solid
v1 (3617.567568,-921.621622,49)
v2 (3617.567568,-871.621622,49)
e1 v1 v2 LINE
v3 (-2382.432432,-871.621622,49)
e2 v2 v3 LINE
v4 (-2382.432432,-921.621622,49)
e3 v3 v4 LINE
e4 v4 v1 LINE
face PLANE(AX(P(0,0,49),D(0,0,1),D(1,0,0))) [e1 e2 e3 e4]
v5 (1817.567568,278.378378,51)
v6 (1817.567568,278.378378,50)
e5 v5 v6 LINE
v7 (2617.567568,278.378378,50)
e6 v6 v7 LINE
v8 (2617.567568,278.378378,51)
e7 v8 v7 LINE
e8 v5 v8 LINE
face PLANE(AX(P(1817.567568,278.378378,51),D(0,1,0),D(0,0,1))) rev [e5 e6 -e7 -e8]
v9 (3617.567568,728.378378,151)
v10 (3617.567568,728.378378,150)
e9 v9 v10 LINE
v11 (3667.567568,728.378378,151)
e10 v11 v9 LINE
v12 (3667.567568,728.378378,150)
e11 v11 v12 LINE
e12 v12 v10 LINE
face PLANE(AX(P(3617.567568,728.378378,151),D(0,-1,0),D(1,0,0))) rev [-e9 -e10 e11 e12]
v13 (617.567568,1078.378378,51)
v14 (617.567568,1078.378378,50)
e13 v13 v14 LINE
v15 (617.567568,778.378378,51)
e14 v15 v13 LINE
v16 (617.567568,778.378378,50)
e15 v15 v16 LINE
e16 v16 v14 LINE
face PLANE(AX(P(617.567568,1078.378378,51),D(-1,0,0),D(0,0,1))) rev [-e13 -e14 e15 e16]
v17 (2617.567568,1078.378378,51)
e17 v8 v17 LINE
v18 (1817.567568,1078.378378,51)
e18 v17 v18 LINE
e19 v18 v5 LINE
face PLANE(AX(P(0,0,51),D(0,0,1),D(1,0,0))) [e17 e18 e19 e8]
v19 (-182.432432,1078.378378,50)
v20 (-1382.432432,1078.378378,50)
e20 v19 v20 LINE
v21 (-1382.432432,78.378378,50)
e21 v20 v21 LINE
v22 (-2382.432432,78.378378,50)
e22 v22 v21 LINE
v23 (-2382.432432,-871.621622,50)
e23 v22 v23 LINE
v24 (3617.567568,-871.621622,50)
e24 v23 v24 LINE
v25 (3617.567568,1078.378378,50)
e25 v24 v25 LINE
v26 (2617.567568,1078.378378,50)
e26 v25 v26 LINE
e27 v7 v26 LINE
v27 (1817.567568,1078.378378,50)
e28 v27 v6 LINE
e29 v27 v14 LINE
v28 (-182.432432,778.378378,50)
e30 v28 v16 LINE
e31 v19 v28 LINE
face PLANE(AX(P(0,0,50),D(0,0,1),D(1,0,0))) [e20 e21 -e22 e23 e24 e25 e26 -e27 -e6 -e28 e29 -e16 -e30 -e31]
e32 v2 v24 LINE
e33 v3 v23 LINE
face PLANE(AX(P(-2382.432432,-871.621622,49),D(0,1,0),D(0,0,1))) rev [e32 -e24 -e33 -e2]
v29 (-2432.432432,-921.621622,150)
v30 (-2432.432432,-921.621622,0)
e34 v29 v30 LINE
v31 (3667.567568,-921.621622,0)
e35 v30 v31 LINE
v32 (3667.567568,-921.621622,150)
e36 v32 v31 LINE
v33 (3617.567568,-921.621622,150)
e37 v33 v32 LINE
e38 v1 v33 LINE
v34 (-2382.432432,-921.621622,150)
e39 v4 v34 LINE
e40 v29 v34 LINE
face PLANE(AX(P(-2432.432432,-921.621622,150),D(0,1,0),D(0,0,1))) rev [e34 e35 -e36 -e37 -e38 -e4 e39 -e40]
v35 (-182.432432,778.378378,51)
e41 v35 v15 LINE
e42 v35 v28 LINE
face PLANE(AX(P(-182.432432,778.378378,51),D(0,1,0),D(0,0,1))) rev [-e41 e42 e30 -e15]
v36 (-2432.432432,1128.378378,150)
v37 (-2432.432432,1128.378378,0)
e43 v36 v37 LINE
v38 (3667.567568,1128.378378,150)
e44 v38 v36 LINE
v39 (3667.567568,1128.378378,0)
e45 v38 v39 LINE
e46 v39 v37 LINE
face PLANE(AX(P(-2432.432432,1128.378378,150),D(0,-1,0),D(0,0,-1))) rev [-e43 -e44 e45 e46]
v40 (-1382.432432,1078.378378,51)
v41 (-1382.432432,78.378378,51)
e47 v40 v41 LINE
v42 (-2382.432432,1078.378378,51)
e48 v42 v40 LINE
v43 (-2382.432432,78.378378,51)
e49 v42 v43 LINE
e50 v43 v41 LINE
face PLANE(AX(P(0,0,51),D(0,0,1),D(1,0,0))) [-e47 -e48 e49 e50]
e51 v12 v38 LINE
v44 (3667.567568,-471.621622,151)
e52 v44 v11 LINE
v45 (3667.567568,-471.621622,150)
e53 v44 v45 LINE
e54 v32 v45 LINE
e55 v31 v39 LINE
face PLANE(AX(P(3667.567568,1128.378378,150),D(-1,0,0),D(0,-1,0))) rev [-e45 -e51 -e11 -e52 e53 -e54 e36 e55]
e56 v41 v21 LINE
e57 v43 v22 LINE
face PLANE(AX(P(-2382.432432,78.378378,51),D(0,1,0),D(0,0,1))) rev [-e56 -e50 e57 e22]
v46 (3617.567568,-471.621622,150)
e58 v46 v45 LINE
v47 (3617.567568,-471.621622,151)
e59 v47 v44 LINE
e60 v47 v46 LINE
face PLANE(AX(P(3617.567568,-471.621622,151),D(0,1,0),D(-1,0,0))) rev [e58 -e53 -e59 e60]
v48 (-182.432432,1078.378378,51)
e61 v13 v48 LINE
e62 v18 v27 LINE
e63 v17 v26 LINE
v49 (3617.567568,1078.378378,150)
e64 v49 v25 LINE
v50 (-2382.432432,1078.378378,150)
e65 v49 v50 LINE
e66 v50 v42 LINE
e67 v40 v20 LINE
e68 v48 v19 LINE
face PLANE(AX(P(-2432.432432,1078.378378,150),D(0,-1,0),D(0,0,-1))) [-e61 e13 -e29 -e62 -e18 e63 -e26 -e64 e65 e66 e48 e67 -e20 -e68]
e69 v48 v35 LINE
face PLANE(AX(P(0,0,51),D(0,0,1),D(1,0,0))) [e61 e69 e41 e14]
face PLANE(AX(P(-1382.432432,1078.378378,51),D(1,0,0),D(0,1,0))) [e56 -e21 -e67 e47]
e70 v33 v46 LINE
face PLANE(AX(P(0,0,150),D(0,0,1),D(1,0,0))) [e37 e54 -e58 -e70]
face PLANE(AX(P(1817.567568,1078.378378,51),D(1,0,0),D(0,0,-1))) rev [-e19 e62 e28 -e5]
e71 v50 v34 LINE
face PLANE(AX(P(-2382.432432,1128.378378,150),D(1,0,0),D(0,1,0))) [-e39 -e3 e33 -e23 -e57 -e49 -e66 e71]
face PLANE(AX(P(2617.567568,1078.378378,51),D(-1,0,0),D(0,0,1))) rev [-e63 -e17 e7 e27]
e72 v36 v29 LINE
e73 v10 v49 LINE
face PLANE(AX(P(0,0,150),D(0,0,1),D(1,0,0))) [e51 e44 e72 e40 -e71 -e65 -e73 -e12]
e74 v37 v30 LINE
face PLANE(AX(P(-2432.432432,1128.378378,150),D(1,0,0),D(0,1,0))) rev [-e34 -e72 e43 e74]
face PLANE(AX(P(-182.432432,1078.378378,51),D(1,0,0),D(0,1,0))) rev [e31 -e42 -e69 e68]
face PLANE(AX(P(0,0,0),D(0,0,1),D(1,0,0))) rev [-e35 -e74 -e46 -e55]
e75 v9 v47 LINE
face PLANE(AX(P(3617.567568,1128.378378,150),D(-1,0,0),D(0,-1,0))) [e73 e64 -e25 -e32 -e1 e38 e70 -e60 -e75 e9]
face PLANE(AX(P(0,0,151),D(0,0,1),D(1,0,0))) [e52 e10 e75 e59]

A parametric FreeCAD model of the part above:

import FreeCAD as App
import Part
import Sketcher
from FreeCAD import Vector


def faces_at(feature, points):
    """Names of the faces that lie closest to the given points."""
    faces = feature.Shape.Faces
    near = lambda p: min(range(len(faces)), key=lambda i: faces[i].distToShape(Part.Vertex(*p))[0])
    return sorted({f"Face{near(p) + 1}" for p in points})

doc = App.newDocument("Part")
body = doc.addObject("PartDesign::Body", "Body")

# Sketch on XY plane
sketch1 = body.newObject("Sketcher::SketchObject", "Sketch")
sketch1.AttachmentSupport = (doc.getObject("XY_Plane"), [""])
sketch1.MapMode = "FlatFace"
sketch1.addGeometry(Part.LineSegment(Vector(-2432, 1128, 0), Vector(-2432, -922, 0)), False)
sketch1.addGeometry(Part.LineSegment(Vector(-2432, -922, 0), Vector(3668, -922, 0)), False)
sketch1.addGeometry(Part.LineSegment(Vector(3668, -922, 0), Vector(3668, 1128, 0)), False)
sketch1.addGeometry(Part.LineSegment(Vector(3668, 1128, 0), Vector(-2432, 1128, 0)), False)
sketch1.addConstraint(Sketcher.Constraint("Coincident", 0, 2, 1, 1))
sketch1.addConstraint(Sketcher.Constraint("Coincident", 1, 2, 2, 1))
sketch1.addConstraint(Sketcher.Constraint("Coincident", 2, 2, 3, 1))
sketch1.addConstraint(Sketcher.Constraint("Coincident", 3, 2, 0, 1))
sketch1.addConstraint(Sketcher.Constraint("Vertical", 0))
sketch1.addConstraint(Sketcher.Constraint("Horizontal", 1))
sketch1.addConstraint(Sketcher.Constraint("Vertical", 2))
sketch1.addConstraint(Sketcher.Constraint("Horizontal", 3))
sketch1.addConstraint(Sketcher.Constraint("DistanceX", 1, 1, 1, 2, 6100.0))
sketch1.addConstraint(Sketcher.Constraint("DistanceY", 0, 2, 0, 1, 2050.0))
sketch1.addConstraint(Sketcher.Constraint("DistanceY", 0, 2, -1, 1, 921.621622))
sketch1.addConstraint(Sketcher.Constraint("DistanceX", 0, 2, -1, 1, 2432.432432))
pad1 = body.newObject("PartDesign::Pad", "Pad")
pad1.Profile = sketch1
pad1.Length = 150
doc.recompute()

thickness = body.newObject("PartDesign::Thickness", "Thickness")
thickness.Base = (pad1, faces_at(pad1, [(617.568, 103.378, 150)]))
thickness.Value = 50
thickness.Reversed = True
thickness.Join = "Intersection"

# Sketch on XY plane
sketch2 = body.newObject("Sketcher::SketchObject", "Sketch001")
sketch2.AttachmentSupport = (doc.getObject("XY_Plane"), [""])
sketch2.MapMode = "FlatFace"
sketch2.AttachmentOffset = App.Placement(Vector(0, 0, 50), App.Rotation())
sketch2.addGeometry(Part.LineSegment(Vector(-2382, 1078, 0), Vector(-2382, 78, 0)), False)
sketch2.addGeometry(Part.LineSegment(Vector(-2382, 78, 0), Vector(-1382, 78, 0)), False)
sketch2.addGeometry(Part.LineSegment(Vector(-1382, 78, 0), Vector(-1382, 1078, 0)), False)
sketch2.addGeometry(Part.LineSegment(Vector(-1382, 1078, 0), Vector(-2382, 1078, 0)), False)
sketch2.addConstraint(Sketcher.Constraint("Coincident", 0, 2, 1, 1))
sketch2.addConstraint(Sketcher.Constraint("Coincident", 1, 2, 2, 1))
sketch2.addConstraint(Sketcher.Constraint("Coincident", 2, 2, 3, 1))
sketch2.addConstraint(Sketcher.Constraint("Coincident", 3, 2, 0, 1))
sketch2.addConstraint(Sketcher.Constraint("Vertical", 0))
sketch2.addConstraint(Sketcher.Constraint("Horizontal", 1))
sketch2.addConstraint(Sketcher.Constraint("Vertical", 2))
sketch2.addConstraint(Sketcher.Constraint("Horizontal", 3))
sketch2.addConstraint(Sketcher.Constraint("Equal", 3, 0))
sketch2.addConstraint(Sketcher.Constraint("DistanceX", 1, 1, 1, 2, 1000.0))
sketch2.addConstraint(Sketcher.Constraint("DistanceY", -1, 1, 0, 2, 78.378378))
sketch2.addConstraint(Sketcher.Constraint("DistanceX", 0, 2, -1, 1, 2382.432432))
pad2 = body.newObject("PartDesign::Pad", "Pad001")
pad2.Profile = sketch2
pad2.Length = 1

# Sketch on XY plane
sketch3 = body.newObject("Sketcher::SketchObject", "Sketch002")
sketch3.AttachmentSupport = (doc.getObject("XY_Plane"), [""])
sketch3.MapMode = "FlatFace"
sketch3.AttachmentOffset = App.Placement(Vector(0, 0, 50), App.Rotation())
sketch3.addGeometry(Part.LineSegment(Vector(1818, 1078, 0), Vector(1818, 278, 0)), False)
sketch3.addGeometry(Part.LineSegment(Vector(1818, 278, 0), Vector(2618, 278, 0)), False)
sketch3.addGeometry(Part.LineSegment(Vector(2618, 278, 0), Vector(2618, 1078, 0)), False)
sketch3.addGeometry(Part.LineSegment(Vector(2618, 1078, 0), Vector(1818, 1078, 0)), False)
sketch3.addConstraint(Sketcher.Constraint("Coincident", 0, 2, 1, 1))
sketch3.addConstraint(Sketcher.Constraint("Coincident", 1, 2, 2, 1))
sketch3.addConstraint(Sketcher.Constraint("Coincident", 2, 2, 3, 1))
sketch3.addConstraint(Sketcher.Constraint("Coincident", 3, 2, 0, 1))
sketch3.addConstraint(Sketcher.Constraint("Vertical", 0))
sketch3.addConstraint(Sketcher.Constraint("Horizontal", 1))
sketch3.addConstraint(Sketcher.Constraint("Vertical", 2))
sketch3.addConstraint(Sketcher.Constraint("Horizontal", 3))
sketch3.addConstraint(Sketcher.Constraint("Equal", 3, 0))
sketch3.addConstraint(Sketcher.Constraint("DistanceX", 1, 1, 1, 2, 800.0))
sketch3.addConstraint(Sketcher.Constraint("DistanceY", -1, 1, 0, 2, 278.378378))
sketch3.addConstraint(Sketcher.Constraint("DistanceX", -1, 1, 0, 2, 1817.567568))
pad3 = body.newObject("PartDesign::Pad", "Pad002")
pad3.Profile = sketch3
pad3.Length = 1

# Sketch on XY plane
sketch4 = body.newObject("Sketcher::SketchObject", "Sketch003")
sketch4.AttachmentSupport = (doc.getObject("XY_Plane"), [""])
sketch4.MapMode = "FlatFace"
sketch4.AttachmentOffset = App.Placement(Vector(0, 0, 50), App.Rotation())
sketch4.addGeometry(Part.LineSegment(Vector(-182, 1078, 0), Vector(-182, 778, 0)), False)
sketch4.addGeometry(Part.LineSegment(Vector(-182, 778, 0), Vector(618, 778, 0)), False)
sketch4.addGeometry(Part.LineSegment(Vector(618, 778, 0), Vector(618, 1078, 0)), False)
sketch4.addGeometry(Part.LineSegment(Vector(618, 1078, 0), Vector(-182, 1078, 0)), False)
sketch4.addConstraint(Sketcher.Constraint("Coincident", 0, 2, 1, 1))
sketch4.addConstraint(Sketcher.Constraint("Coincident", 1, 2, 2, 1))
sketch4.addConstraint(Sketcher.Constraint("Coincident", 2, 2, 3, 1))
sketch4.addConstraint(Sketcher.Constraint("Coincident", 3, 2, 0, 1))
sketch4.addConstraint(Sketcher.Constraint("Vertical", 0))
sketch4.addConstraint(Sketcher.Constraint("Horizontal", 1))
sketch4.addConstraint(Sketcher.Constraint("Vertical", 2))
sketch4.addConstraint(Sketcher.Constraint("Horizontal", 3))
sketch4.addConstraint(Sketcher.Constraint("DistanceX", 1, 1, 1, 2, 800.0))
sketch4.addConstraint(Sketcher.Constraint("DistanceY", 0, 2, 0, 1, 300.0))
sketch4.addConstraint(Sketcher.Constraint("DistanceY", -1, 1, 0, 2, 778.378378))
sketch4.addConstraint(Sketcher.Constraint("DistanceX", 0, 2, -1, 1, 182.432432))
pad4 = body.newObject("PartDesign::Pad", "Pad003")
pad4.Profile = sketch4
pad4.Length = 1

# Sketch on XY plane
sketch5 = body.newObject("Sketcher::SketchObject", "Sketch004")
sketch5.AttachmentSupport = (doc.getObject("XY_Plane"), [""])
sketch5.MapMode = "FlatFace"
sketch5.AttachmentOffset = App.Placement(Vector(0, 0, 150), App.Rotation())
sketch5.addGeometry(Part.LineSegment(Vector(3618, 728, 0), Vector(3618, -472, 0)), False)
sketch5.addGeometry(Part.LineSegment(Vector(3618, -472, 0), Vector(3668, -472, 0)), False)
sketch5.addGeometry(Part.LineSegment(Vector(3668, -472, 0), Vector(3668, 728, 0)), False)
sketch5.addGeometry(Part.LineSegment(Vector(3668, 728, 0), Vector(3618, 728, 0)), False)
sketch5.addConstraint(Sketcher.Constraint("Coincident", 0, 2, 1, 1))
sketch5.addConstraint(Sketcher.Constraint("Coincident", 1, 2, 2, 1))
sketch5.addConstraint(Sketcher.Constraint("Coincident", 2, 2, 3, 1))
sketch5.addConstraint(Sketcher.Constraint("Coincident", 3, 2, 0, 1))
sketch5.addConstraint(Sketcher.Constraint("Vertical", 0))
sketch5.addConstraint(Sketcher.Constraint("Horizontal", 1))
sketch5.addConstraint(Sketcher.Constraint("Vertical", 2))
sketch5.addConstraint(Sketcher.Constraint("Horizontal", 3))
sketch5.addConstraint(Sketcher.Constraint("DistanceX", 1, 1, 1, 2, 50.0))
sketch5.addConstraint(Sketcher.Constraint("DistanceY", 0, 2, 0, 1, 1200.0))
sketch5.addConstraint(Sketcher.Constraint("DistanceY", 0, 2, -1, 1, 471.621622))
sketch5.addConstraint(Sketcher.Constraint("DistanceX", -1, 1, 0, 2, 3617.567568))
pad5 = body.newObject("PartDesign::Pad", "Pad004")
pad5.Profile = sketch5
pad5.Length = 1

# Sketch on XY plane
sketch6 = body.newObject("Sketcher::SketchObject", "Sketch005")
sketch6.AttachmentSupport = (doc.getObject("XY_Plane"), [""])
sketch6.MapMode = "FlatFace"
sketch6.AttachmentOffset = App.Placement(Vector(0, 0, 150), App.Rotation())
sketch6.addGeometry(Part.LineSegment(Vector(-2382, -872, 0), Vector(-2382, -922, 0)), False)
sketch6.addGeometry(Part.LineSegment(Vector(-2382, -922, 0), Vector(3618, -922, 0)), False)
sketch6.addGeometry(Part.LineSegment(Vector(3618, -922, 0), Vector(3618, -872, 0)), False)
sketch6.addGeometry(Part.LineSegment(Vector(3618, -872, 0), Vector(-2382, -872, 0)), False)
sketch6.addConstraint(Sketcher.Constraint("Coincident", 0, 2, 1, 1))
sketch6.addConstraint(Sketcher.Constraint("Coincident", 1, 2, 2, 1))
sketch6.addConstraint(Sketcher.Constraint("Coincident", 2, 2, 3, 1))
sketch6.addConstraint(Sketcher.Constraint("Coincident", 3, 2, 0, 1))
sketch6.addConstraint(Sketcher.Constraint("Vertical", 0))
sketch6.addConstraint(Sketcher.Constraint("Horizontal", 1))
sketch6.addConstraint(Sketcher.Constraint("Vertical", 2))
sketch6.addConstraint(Sketcher.Constraint("Horizontal", 3))
sketch6.addConstraint(Sketcher.Constraint("DistanceX", 1, 1, 1, 2, 6000.0))
sketch6.addConstraint(Sketcher.Constraint("DistanceY", 0, 2, 0, 1, 50.0))
sketch6.addConstraint(Sketcher.Constraint("DistanceY", 0, 2, -1, 1, 921.621622))
sketch6.addConstraint(Sketcher.Constraint("DistanceX", 0, 2, -1, 1, 2382.432432))
pocket1 = body.newObject("PartDesign::Pocket", "Pocket")
pocket1.Profile = sketch6
pocket1.Length = 101

doc.recompute()
